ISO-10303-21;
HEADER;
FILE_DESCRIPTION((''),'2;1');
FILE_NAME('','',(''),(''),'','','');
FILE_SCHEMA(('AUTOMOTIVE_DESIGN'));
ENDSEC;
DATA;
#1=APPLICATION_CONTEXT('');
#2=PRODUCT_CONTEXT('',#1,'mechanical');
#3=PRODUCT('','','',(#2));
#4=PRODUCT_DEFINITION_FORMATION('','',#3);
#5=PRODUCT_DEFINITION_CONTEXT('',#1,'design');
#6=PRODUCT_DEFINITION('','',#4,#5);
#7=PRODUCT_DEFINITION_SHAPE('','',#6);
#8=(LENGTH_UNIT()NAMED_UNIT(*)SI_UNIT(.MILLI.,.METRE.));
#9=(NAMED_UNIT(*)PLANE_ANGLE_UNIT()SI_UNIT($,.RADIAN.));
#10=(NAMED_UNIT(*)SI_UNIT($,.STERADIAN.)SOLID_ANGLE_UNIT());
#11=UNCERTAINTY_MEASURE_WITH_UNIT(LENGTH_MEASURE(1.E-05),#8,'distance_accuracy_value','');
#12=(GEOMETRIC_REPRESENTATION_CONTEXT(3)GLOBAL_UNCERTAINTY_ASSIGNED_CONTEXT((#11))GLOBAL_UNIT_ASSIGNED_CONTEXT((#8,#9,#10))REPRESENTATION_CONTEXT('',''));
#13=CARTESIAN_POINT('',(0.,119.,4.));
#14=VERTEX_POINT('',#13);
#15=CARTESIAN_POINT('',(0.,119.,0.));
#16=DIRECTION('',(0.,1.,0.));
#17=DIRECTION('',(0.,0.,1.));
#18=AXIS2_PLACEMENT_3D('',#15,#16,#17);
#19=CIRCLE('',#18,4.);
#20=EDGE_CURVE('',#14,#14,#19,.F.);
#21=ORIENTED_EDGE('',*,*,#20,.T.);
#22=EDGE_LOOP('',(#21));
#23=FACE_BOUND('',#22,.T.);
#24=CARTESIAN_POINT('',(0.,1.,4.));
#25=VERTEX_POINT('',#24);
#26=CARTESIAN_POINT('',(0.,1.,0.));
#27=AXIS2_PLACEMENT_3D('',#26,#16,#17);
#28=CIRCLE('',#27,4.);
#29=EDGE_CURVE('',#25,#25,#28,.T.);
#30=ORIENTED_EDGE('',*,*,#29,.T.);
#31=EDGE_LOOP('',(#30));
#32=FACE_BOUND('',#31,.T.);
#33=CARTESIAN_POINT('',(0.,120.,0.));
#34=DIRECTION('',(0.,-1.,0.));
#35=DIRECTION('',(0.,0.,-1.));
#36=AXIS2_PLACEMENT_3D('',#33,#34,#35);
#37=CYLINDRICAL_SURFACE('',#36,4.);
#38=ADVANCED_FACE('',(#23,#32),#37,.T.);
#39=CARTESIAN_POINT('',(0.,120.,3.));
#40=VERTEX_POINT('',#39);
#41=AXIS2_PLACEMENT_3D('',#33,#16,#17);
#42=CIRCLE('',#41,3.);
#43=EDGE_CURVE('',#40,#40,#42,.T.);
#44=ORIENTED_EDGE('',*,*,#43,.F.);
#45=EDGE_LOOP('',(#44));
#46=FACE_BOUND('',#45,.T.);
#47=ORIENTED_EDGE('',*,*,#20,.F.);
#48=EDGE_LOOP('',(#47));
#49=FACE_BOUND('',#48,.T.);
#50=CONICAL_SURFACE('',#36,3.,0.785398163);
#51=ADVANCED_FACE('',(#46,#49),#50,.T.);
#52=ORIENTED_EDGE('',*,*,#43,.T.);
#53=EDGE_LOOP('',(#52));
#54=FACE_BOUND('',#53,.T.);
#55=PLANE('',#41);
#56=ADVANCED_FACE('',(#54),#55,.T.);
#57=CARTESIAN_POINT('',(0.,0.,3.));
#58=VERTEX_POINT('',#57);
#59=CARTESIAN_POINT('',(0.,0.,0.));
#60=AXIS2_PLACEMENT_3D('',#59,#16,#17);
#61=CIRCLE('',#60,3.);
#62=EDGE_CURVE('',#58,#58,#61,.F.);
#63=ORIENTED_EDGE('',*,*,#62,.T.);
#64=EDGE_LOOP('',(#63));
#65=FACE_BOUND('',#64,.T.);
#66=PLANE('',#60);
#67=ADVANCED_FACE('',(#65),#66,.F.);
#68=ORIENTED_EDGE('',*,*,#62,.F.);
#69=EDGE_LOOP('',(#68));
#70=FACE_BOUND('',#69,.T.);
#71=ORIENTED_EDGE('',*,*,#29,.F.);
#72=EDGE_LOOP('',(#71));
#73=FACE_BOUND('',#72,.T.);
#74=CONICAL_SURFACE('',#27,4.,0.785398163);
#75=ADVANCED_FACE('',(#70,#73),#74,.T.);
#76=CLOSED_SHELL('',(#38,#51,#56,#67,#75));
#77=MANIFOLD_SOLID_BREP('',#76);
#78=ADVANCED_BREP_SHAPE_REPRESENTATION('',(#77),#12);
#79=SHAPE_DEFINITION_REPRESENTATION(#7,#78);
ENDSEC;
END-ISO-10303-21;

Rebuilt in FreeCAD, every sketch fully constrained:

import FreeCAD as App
import Part
import Sketcher
from FreeCAD import Vector


def edges_at(feature, points):
    """Names of the edges that pass closest to the given points."""
    edges = feature.Shape.Edges
    near = lambda p: min(range(len(edges)), key=lambda i: edges[i].distToShape(Part.Vertex(*p))[0])
    return sorted({f"Edge{near(p) + 1}" for p in points})

doc = App.newDocument("Part")
body = doc.addObject("PartDesign::Body", "Body")

sketch1 = body.newObject("Sketcher::SketchObject", "Sketch")
sketch1.AttachmentSupport = (doc.getObject("XZ_Plane"), [""])
sketch1.MapMode = "FlatFace"
sketch1.addGeometry(Part.Circle(Vector(0, 0, 0), Vector(0, 0, 1), 4), False)
sketch1.addConstraint(Sketcher.Constraint("Coincident", 0, 3, -1, 1))
sketch1.addConstraint(Sketcher.Constraint("Diameter", 0, 8.0))
pad1 = body.newObject("PartDesign::Pad", "Pad")
pad1.Profile = sketch1
pad1.Length = 120
pad1.Reversed = True
doc.recompute()

chamfer = body.newObject("PartDesign::Chamfer", "Chamfer")
chamfer.Base = (pad1, edges_at(pad1, [(-4, 0, 0), (-4, 120, 0)]))
chamfer.Size = 1

doc.recompute()
